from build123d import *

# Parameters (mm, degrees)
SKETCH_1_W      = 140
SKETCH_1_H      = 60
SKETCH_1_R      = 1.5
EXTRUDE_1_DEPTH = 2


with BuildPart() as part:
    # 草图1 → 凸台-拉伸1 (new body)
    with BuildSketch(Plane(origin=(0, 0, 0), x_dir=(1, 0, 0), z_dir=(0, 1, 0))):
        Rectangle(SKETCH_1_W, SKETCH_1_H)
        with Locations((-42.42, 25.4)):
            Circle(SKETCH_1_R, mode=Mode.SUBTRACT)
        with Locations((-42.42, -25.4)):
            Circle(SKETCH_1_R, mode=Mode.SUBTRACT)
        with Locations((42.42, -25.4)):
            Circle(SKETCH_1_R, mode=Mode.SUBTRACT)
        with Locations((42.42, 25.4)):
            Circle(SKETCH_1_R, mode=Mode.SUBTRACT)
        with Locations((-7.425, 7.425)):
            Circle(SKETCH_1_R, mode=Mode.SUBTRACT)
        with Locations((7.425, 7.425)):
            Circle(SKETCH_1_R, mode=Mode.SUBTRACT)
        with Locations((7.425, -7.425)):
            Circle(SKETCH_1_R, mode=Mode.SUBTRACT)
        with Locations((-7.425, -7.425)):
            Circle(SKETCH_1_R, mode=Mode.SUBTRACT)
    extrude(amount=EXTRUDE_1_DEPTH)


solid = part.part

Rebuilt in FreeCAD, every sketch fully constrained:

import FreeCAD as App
import Part
import Sketcher
from FreeCAD import Vector


def add_polygon(sketch, points):
    """Adds a closed chain of lines whose ends are joined by coincident constraints."""
    first, n = sketch.GeometryCount, len(points)
    for a, b in zip(points, points[1:] + points[:1]):
        sketch.addGeometry(Part.LineSegment(App.Vector(*a, 0), App.Vector(*b, 0)), False)
    for i in range(n):
        sketch.addConstraint(Sketcher.Constraint("Coincident", first + i, 2, first + (i + 1) % n, 1))

doc = App.newDocument("Part")
body = doc.addObject("PartDesign::Body", "Body")

# Sketch on XZ plane
sketch1 = body.newObject("Sketcher::SketchObject", "Sketch")
sketch1.AttachmentSupport = (doc.getObject("XZ_Plane"), [""])
sketch1.MapMode = "FlatFace"
add_polygon(sketch1, [(-70, -30), (-70, 30), (70, 30), (70, -30)])  # lines 0-3
sketch1.addGeometry(Part.Circle(Vector(-42.42, 25.4, 0), Vector(0, 0, 1), 1.5), False)  # 4
sketch1.addGeometry(Part.Circle(Vector(-7.425, 7.425, 0), Vector(0, 0, 1), 1.5), False)  # 5
sketch1.addGeometry(Part.Circle(Vector(42.42, 25.4, 0), Vector(0, 0, 1), 1.5), False)  # 6
sketch1.addGeometry(Part.Circle(Vector(7.425, 7.425, 0), Vector(0, 0, 1), 1.5), False)  # 7
sketch1.addGeometry(Part.Circle(Vector(-7.425, -7.425, 0), Vector(0, 0, 1), 1.5), False)  # 8
sketch1.addGeometry(Part.Circle(Vector(-42.42, -25.4, 0), Vector(0, 0, 1), 1.5), False)  # 9
sketch1.addGeometry(Part.Circle(Vector(7.425, -7.425, 0), Vector(0, 0, 1), 1.5), False)  # 10
sketch1.addGeometry(Part.Circle(Vector(42.42, -25.4, 0), Vector(0, 0, 1), 1.5), False)  # 11
sketch1.addConstraint([
    Sketcher.Constraint("Vertical", 0),
    Sketcher.Constraint("Horizontal", 1),
    Sketcher.Constraint("Vertical", 2),
    Sketcher.Constraint("Horizontal", 3),
    Sketcher.Constraint("Equal", 4, 5),
    Sketcher.Constraint("Equal", 5, 6),
    Sketcher.Constraint("Equal", 6, 7),
    Sketcher.Constraint("Equal", 7, 8),
    Sketcher.Constraint("Equal", 8, 9),
    Sketcher.Constraint("Equal", 9, 10),
    Sketcher.Constraint("Equal", 10, 11),
    Sketcher.Constraint("Symmetric", 7, 3, 8, 3, -1, 1),
    Sketcher.Constraint("Symmetric", 6, 3, 9, 3, -1, 1),
    Sketcher.Constraint("Symmetric", 5, 3, 10, 3, -1, 1),
    Sketcher.Constraint("Symmetric", 4, 3, 11, 3, -1, 1),
    Sketcher.Constraint("Symmetric", 0, 2, 2, 2, -1, 1),
    Sketcher.Constraint("Symmetric", 4, 3, 6, 3, -2),
    Sketcher.Constraint("Symmetric", 5, 3, 7, 3, -2),
    Sketcher.Constraint("Diameter", 4, 3.0),
    Sketcher.Constraint("DistanceX", 1, 1, 1, 2, 140.0),
    Sketcher.Constraint("DistanceY", 0, 1, 0, 2, 60.0),
    Sketcher.Constraint("DistanceY", -1, 1, 4, 3, 25.4),
    Sketcher.Constraint("DistanceX", 4, 3, -1, 1, 42.42),
    Sketcher.Constraint("DistanceX", 5, 3, 7, 3, 14.85),
    Sketcher.Constraint("DistanceY", 8, 3, 5, 3, 14.85),
])
pad1 = body.newObject("PartDesign::Pad", "Pad")
pad1.Profile = sketch1
pad1.Length = 2
pad1.Reversed = True

doc.recompute()
